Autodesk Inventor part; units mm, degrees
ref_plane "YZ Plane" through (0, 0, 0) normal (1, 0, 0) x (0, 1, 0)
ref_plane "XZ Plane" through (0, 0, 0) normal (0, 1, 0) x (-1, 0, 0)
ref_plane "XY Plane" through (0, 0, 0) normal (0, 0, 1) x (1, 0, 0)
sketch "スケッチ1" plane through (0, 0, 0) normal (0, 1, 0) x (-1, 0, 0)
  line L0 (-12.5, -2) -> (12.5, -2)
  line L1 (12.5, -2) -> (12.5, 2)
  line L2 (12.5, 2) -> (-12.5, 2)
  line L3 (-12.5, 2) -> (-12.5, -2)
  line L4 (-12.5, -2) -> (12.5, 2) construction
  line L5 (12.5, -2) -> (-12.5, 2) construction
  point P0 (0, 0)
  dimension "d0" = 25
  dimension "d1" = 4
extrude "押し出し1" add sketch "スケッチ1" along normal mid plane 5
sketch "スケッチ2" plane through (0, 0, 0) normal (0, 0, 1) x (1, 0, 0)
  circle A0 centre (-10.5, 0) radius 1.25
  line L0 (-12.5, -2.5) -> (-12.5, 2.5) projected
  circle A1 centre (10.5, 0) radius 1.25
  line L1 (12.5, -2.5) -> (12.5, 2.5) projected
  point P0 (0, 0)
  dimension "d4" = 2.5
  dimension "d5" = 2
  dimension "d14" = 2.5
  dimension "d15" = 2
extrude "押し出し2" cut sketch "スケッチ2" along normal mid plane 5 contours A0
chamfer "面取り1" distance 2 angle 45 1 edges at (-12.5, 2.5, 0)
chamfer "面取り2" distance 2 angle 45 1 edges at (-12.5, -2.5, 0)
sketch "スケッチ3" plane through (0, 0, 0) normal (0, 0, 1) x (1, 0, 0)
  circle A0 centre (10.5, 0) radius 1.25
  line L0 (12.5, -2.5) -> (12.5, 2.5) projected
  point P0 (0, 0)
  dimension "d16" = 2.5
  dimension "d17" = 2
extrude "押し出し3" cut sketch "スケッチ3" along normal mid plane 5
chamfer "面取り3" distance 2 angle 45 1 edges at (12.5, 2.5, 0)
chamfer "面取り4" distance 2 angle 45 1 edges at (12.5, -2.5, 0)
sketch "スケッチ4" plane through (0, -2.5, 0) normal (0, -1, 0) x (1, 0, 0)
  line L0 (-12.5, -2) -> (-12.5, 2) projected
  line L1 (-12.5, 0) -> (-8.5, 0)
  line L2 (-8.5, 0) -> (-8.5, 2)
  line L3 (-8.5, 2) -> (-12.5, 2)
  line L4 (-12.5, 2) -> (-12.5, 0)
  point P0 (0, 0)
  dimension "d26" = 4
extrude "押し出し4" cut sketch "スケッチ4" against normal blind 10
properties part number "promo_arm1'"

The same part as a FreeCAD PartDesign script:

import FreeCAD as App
import Part
import Sketcher

V = App.Vector
Q = App.Units.Quantity


def edges_at(feature, points):
    """Names of the edges that pass closest to the given points."""
    edges = feature.Shape.Edges
    near = lambda p: min(range(len(edges)), key=lambda i: edges[i].distToShape(Part.Vertex(*p))[0])
    return sorted({f"Edge{near(p) + 1}" for p in points})

doc = App.newDocument("Part")
body = doc.addObject("PartDesign::Body", "Body")

sketch1 = body.newObject("Sketcher::SketchObject", "Sketch")
sketch1.AttachmentSupport = (doc.getObject("XZ_Plane"), [""])
sketch1.MapMode = "FlatFace"
sketch1.addGeometry(Part.LineSegment(V(12.5, 2, 0), V(12.5, -2, 0)), False)
sketch1.addGeometry(Part.LineSegment(V(12.5, -2, 0), V(-12.5, -2, 0)), False)
sketch1.addGeometry(Part.LineSegment(V(-12.5, -2, 0), V(-12.5, 2, 0)), False)
sketch1.addGeometry(Part.LineSegment(V(-12.5, 2, 0), V(12.5, 2, 0)), False)
sketch1.addConstraint(Sketcher.Constraint("Coincident", 0, 2, 1, 1))
sketch1.addConstraint(Sketcher.Constraint("Coincident", 1, 2, 2, 1))
sketch1.addConstraint(Sketcher.Constraint("Coincident", 2, 2, 3, 1))
sketch1.addConstraint(Sketcher.Constraint("Coincident", 3, 2, 0, 1))
sketch1.addConstraint(Sketcher.Constraint("Vertical", 0))
sketch1.addConstraint(Sketcher.Constraint("Horizontal", 1))
sketch1.addConstraint(Sketcher.Constraint("Vertical", 2))
sketch1.addConstraint(Sketcher.Constraint("Horizontal", 3))
sketch1.addConstraint(Sketcher.Constraint("Symmetric", 0, 2, 2, 2, -1, 1))
sketch1.addConstraint(Sketcher.Constraint("DistanceX", 1, 2, 1, 1, Q("25 mm")))
sketch1.addConstraint(Sketcher.Constraint("DistanceY", 0, 2, 0, 1, Q("4 mm")))
pad1 = body.newObject("PartDesign::Pad", "Pad")
pad1.Profile = sketch1
pad1.Length = 5
pad1.Midplane = True

sketch2 = body.newObject("Sketcher::SketchObject", "Sketch001")
sketch2.AttachmentSupport = (doc.getObject("XY_Plane"), [""])
sketch2.MapMode = "FlatFace"
sketch2.addGeometry(Part.Circle(V(-10.5, 0, 0), V(0, 0, 1), 1.2), False)
sketch2.addConstraint(Sketcher.Constraint("PointOnObject", 0, 3, -1))
sketch2.addConstraint(Sketcher.Constraint("Diameter", 0, Q("2.5 mm")))
sketch2.addConstraint(Sketcher.Constraint("DistanceX", 0, 3, -1, 1, Q("10.5 mm")))
pocket1 = body.newObject("PartDesign::Pocket", "Pocket")
pocket1.Profile = sketch2
pocket1.Length = 5
pocket1.Midplane = True
doc.recompute()

chamfer = body.newObject("PartDesign::Chamfer", "Chamfer")
chamfer.Base = (pocket1, edges_at(pocket1, [(-12.5, 2.5, 0)]))
chamfer.Size = 2
doc.recompute()

chamfer2 = body.newObject("PartDesign::Chamfer", "Chamfer001")
chamfer2.Base = (chamfer, edges_at(chamfer, [(-12.5, -2.5, 0)]))
chamfer2.Size = 2

sketch3 = body.newObject("Sketcher::SketchObject", "Sketch002")
sketch3.AttachmentSupport = (doc.getObject("XY_Plane"), [""])
sketch3.MapMode = "FlatFace"
sketch3.addGeometry(Part.Circle(V(10.5, 0, 0), V(0, 0, 1), 1.2), False)
sketch3.addConstraint(Sketcher.Constraint("PointOnObject", 0, 3, -1))
sketch3.addConstraint(Sketcher.Constraint("Diameter", 0, Q("2.5 mm")))
sketch3.addConstraint(Sketcher.Constraint("DistanceX", -1, 1, 0, 3, Q("10.5 mm")))
pocket2 = body.newObject("PartDesign::Pocket", "Pocket001")
pocket2.Profile = sketch3
pocket2.Length = 5
pocket2.Midplane = True
doc.recompute()

chamfer3 = body.newObject("PartDesign::Chamfer", "Chamfer002")
chamfer3.Base = (pocket2, edges_at(pocket2, [(12.5, 2.5, 0)]))
chamfer3.Size = 2
doc.recompute()

chamfer4 = body.newObject("PartDesign::Chamfer", "Chamfer003")
chamfer4.Base = (chamfer3, edges_at(chamfer3, [(12.5, -2.5, 0)]))
chamfer4.Size = 2

sketch4 = body.newObject("Sketcher::SketchObject", "Sketch003")
sketch4.AttachmentSupport = (doc.getObject("XZ_Plane"), [""])
sketch4.MapMode = "FlatFace"
sketch4.AttachmentOffset = App.Placement(V(0, 0, 2.5), App.Rotation())
sketch4.addGeometry(Part.LineSegment(V(-12.5, 2, 0), V(-12.5, 0, 0)), False)
sketch4.addGeometry(Part.LineSegment(V(-12.5, 0, 0), V(-8.5, 0, 0)), False)
sketch4.addGeometry(Part.LineSegment(V(-8.5, 0, 0), V(-8.5, 2, 0)), False)
sketch4.addGeometry(Part.LineSegment(V(-8.5, 2, 0), V(-12.5, 2, 0)), False)
sketch4.addConstraint(Sketcher.Constraint("Coincident", 0, 2, 1, 1))
sketch4.addConstraint(Sketcher.Constraint("Coincident", 1, 2, 2, 1))
sketch4.addConstraint(Sketcher.Constraint("Coincident", 2, 2, 3, 1))
sketch4.addConstraint(Sketcher.Constraint("Coincident", 3, 2, 0, 1))
sketch4.addConstraint(Sketcher.Constraint("Vertical", 0))
sketch4.addConstraint(Sketcher.Constraint("Horizontal", 1))
sketch4.addConstraint(Sketcher.Constraint("Vertical", 2))
sketch4.addConstraint(Sketcher.Constraint("Horizontal", 3))
sketch4.addConstraint(Sketcher.Constraint("PointOnObject", 0, 2, -1))
sketch4.addConstraint(Sketcher.Constraint("DistanceX", 1, 1, 1, 2, Q("4 mm")))
sketch4.addConstraint(Sketcher.Constraint("DistanceY", 0, 2, 0, 1, Q("2 mm")))
sketch4.addConstraint(Sketcher.Constraint("DistanceX", 0, 2, -1, 1, Q("12.5 mm")))
pocket3 = body.newObject("PartDesign::Pocket", "Pocket002")
pocket3.Profile = sketch4
pocket3.Length = 10

doc.recompute()
